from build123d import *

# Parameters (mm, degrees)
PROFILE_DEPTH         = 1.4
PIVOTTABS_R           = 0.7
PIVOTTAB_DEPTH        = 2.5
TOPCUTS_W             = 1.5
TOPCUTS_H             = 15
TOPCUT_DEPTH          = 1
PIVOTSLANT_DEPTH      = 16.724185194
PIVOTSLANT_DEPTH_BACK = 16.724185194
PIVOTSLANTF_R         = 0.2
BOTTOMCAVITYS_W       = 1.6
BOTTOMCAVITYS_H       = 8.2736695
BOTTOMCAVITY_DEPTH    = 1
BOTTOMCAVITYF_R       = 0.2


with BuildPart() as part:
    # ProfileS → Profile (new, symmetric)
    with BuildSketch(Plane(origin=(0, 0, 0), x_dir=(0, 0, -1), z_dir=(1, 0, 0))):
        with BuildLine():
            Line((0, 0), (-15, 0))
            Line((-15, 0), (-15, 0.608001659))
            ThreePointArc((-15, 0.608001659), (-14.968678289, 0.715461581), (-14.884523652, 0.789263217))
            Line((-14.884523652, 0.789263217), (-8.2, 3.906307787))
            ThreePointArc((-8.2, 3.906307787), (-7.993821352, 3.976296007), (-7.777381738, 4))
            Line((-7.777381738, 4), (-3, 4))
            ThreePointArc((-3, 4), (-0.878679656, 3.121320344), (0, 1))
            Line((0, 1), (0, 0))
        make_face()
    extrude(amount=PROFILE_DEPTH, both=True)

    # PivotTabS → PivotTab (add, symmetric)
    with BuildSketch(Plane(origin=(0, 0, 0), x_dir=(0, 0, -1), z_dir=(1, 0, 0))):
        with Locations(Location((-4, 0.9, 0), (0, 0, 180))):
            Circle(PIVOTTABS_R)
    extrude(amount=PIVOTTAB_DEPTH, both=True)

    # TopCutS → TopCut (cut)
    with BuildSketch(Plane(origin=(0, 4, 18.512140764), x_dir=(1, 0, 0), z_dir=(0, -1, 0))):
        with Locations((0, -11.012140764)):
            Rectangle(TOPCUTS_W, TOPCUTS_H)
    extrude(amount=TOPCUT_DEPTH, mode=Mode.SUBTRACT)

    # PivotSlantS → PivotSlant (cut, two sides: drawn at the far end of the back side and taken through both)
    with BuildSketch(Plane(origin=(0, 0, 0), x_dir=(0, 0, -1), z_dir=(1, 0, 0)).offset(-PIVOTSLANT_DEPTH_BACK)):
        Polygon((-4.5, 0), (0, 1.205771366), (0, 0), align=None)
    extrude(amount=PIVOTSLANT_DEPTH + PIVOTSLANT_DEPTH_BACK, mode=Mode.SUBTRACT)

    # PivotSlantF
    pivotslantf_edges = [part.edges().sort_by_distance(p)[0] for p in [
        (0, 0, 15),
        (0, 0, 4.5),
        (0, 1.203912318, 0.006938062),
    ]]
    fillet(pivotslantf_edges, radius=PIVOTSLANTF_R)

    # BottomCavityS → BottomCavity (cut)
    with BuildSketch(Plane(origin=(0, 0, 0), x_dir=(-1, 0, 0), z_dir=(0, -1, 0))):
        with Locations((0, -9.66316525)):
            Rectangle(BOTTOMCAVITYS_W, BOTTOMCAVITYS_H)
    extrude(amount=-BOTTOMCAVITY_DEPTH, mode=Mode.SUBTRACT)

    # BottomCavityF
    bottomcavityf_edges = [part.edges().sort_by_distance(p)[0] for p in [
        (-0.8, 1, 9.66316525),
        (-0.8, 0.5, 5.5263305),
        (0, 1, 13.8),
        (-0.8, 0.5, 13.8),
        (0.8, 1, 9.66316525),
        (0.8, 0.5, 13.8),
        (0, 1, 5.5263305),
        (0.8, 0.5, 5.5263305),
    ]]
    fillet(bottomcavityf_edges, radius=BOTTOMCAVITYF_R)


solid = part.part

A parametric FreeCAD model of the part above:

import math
import FreeCAD as App
import Part
import Sketcher
Q = App.Units.Quantity


def edges_at(feature, points):
    """Names of the edges that pass closest to the given points."""
    edges = feature.Shape.Edges
    near = lambda p: min(range(len(edges)), key=lambda i: edges[i].distToShape(Part.Vertex(*p))[0])
    return sorted({f"Edge{near(p) + 1}" for p in points})


def add_polygon(sketch, points):
    """Adds a closed chain of lines whose ends are joined by coincident constraints."""
    first, n = sketch.GeometryCount, len(points)
    for a, b in zip(points, points[1:] + points[:1]):
        sketch.addGeometry(Part.LineSegment(App.Vector(*a, 0), App.Vector(*b, 0)), False)
    for i in range(n):
        sketch.addConstraint(Sketcher.Constraint("Coincident", first + i, 2, first + (i + 1) % n, 1))

doc = App.newDocument("Part")
body = doc.addObject("PartDesign::Body", "Body")

sketch1 = doc.addObject("Sketcher::SketchObject", "Sketch")
body.addObject(sketch1)
sketch1.AttachmentSupport = (doc.YZ_Plane, [""])
sketch1.MapMode = "FlatFace"
sketch1.addGeometry([
    Part.LineSegment(App.Vector(0, 15, 0), App.Vector(0, 0, 0)),
    Part.LineSegment(App.Vector(0, 0, 0), App.Vector(1, 0, 0)),
    Part.ArcOfCircle(Part.Circle(App.Vector(1, 3, 0), App.Vector(0, 0, 1), 3), math.radians(-90), math.radians(0)),
    Part.LineSegment(App.Vector(4, 3, 0), App.Vector(4, 7.78, 0)),
    Part.ArcOfCircle(Part.Circle(App.Vector(3, 7.78, 0), App.Vector(0, 0, 1), 1), math.radians(0), math.radians(25)),
    Part.LineSegment(App.Vector(3.91, 8.2, 0), App.Vector(0.79, 14.88, 0)),
    Part.ArcOfCircle(Part.Circle(App.Vector(0.61, 14.8, 0), App.Vector(0, 0, 1), 0.2), math.radians(25), math.radians(90)),
    Part.LineSegment(App.Vector(0.61, 15, 0), App.Vector(0, 15, 0)),
], False)
sketch1.addConstraint([
    Sketcher.Constraint("Coincident", 0, 2, 1, 1),
    Sketcher.Constraint("Tangent", 1, 2, 2, 1),
    Sketcher.Constraint("Tangent", 2, 2, 3, 1),
    Sketcher.Constraint("Tangent", 3, 2, 4, 1),
    Sketcher.Constraint("Tangent", 4, 2, 5, 1),
    Sketcher.Constraint("Tangent", 5, 2, 6, 1),
    Sketcher.Constraint("Tangent", 6, 2, 7, 1),
    Sketcher.Constraint("Coincident", 7, 2, 0, 1),
    Sketcher.Constraint("Vertical", 0),
    Sketcher.Constraint("Horizontal", 1),
    Sketcher.Constraint("Vertical", 3),
    Sketcher.Constraint("Horizontal", 7),
    Sketcher.Constraint("Coincident", 0, 2, -1, 1),
    Sketcher.Constraint("Radius", 2, 3.0),
    Sketcher.Constraint("Radius", 4, 1.0),
    Sketcher.Constraint("Radius", 6, 0.2),
    Sketcher.Constraint("DistanceX", 1, 1, 1, 2, 1.0),
    Sketcher.Constraint("DistanceY", 0, 2, 0, 1, 15.0),
    Sketcher.Constraint("Angle", 5, Q("115 deg")),
    Sketcher.Constraint("DistanceY", -1, 1, 4, 2, 8.2),
])
pad1 = doc.addObject("PartDesign::Pad", "Pad")
body.addObject(pad1)
pad1.Profile = sketch1
pad1.Length = 2.8
pad1.Midplane = True

sketch2 = doc.addObject("Sketcher::SketchObject", "Sketch001")
body.addObject(sketch2)
sketch2.AttachmentSupport = (doc.YZ_Plane, [""])
sketch2.MapMode = "FlatFace"
sketch2.addGeometry(Part.Circle(App.Vector(0.9, 4, 0), App.Vector(0, 0, 1), 0.7), False)
sketch2.addConstraint([
    Sketcher.Constraint("Diameter", 0, 1.4),
    Sketcher.Constraint("DistanceY", -1, 1, 0, 3, 4.0),
    Sketcher.Constraint("DistanceX", -1, 1, 0, 3, 0.9),
])
pad2 = doc.addObject("PartDesign::Pad", "Pad001")
body.addObject(pad2)
pad2.Profile = sketch2
pad2.Length = 5
pad2.Midplane = True

sketch3 = doc.addObject("Sketcher::SketchObject", "Sketch002")
body.addObject(sketch3)
sketch3.AttachmentSupport = (doc.XZ_Plane, [""])
sketch3.MapMode = "FlatFace"
sketch3.AttachmentOffset = App.Placement(App.Vector(0, 0, -4), App.Rotation())
add_polygon(sketch3, [(-0.8, 15), (-0.8, 0), (0.8, 0), (0.8, 15)])
sketch3.addConstraint([
    Sketcher.Constraint("Vertical", 0),
    Sketcher.Constraint("Horizontal", 1),
    Sketcher.Constraint("Vertical", 2),
    Sketcher.Constraint("Horizontal", 3),
    Sketcher.Constraint("Symmetric", 0, 2, 1, 2, -1, 1),
    Sketcher.Constraint("DistanceY", 0, 2, 0, 1, 15.0),
    Sketcher.Constraint("DistanceX", 1, 1, 1, 2, 1.5),
])
pocket1 = doc.addObject("PartDesign::Pocket", "Pocket")
body.addObject(pocket1)
pocket1.Profile = sketch3
pocket1.Length = 1
pocket1.Reversed = True

sketch4 = doc.addObject("Sketcher::SketchObject", "Sketch003")
body.addObject(sketch4)
sketch4.AttachmentSupport = (doc.YZ_Plane, [""])
sketch4.MapMode = "FlatFace"
add_polygon(sketch4, [(1.2, 0), (0, 4.5), (0, 0)])
sketch4.addConstraint([
    Sketcher.Constraint("Vertical", 1),
    Sketcher.Constraint("Horizontal", 2),
    Sketcher.Constraint("Coincident", 1, 2, -1, 1),
    Sketcher.Constraint("Angle", 0, Q("105 deg")),
    Sketcher.Constraint("DistanceY", 1, 2, 1, 1, 4.5),
])
pocket2 = doc.addObject("PartDesign::Pocket", "Pocket001")
body.addObject(pocket2)
pocket2.Profile = sketch4
pocket2.Type = "ThroughAll"
pocket2.Midplane = True
doc.recompute()

fillet = doc.addObject("PartDesign::Fillet", "Fillet")
body.addObject(fillet)
fillet.Base = (pocket2, edges_at(pocket2, [(0, 0, 15), (0, 0, 4.5), (0, 1.204, 0.007)]))
fillet.Radius = 0.2

sketch5 = doc.addObject("Sketcher::SketchObject", "Sketch004")
body.addObject(sketch5)
sketch5.AttachmentSupport = (doc.XZ_Plane, [""])
sketch5.MapMode = "FlatFace"
add_polygon(sketch5, [(0.8, 5.5), (0.8, 13.8), (-0.8, 13.8), (-0.8, 5.5)])
sketch5.addConstraint([
    Sketcher.Constraint("Vertical", 0),
    Sketcher.Constraint("Horizontal", 1),
    Sketcher.Constraint("Vertical", 2),
    Sketcher.Constraint("Horizontal", 3),
    Sketcher.Constraint("DistanceX", 1, 2, 1, 1, 1.6),
    Sketcher.Constraint("DistanceX", -1, 1, 0, 2, 0.8),
    Sketcher.Constraint("DistanceY", -1, 1, 0, 2, 13.8),
    Sketcher.Constraint("DistanceY", 0, 1, 0, 2, 8.27367),
])
pocket3 = doc.addObject("PartDesign::Pocket", "Pocket002")
body.addObject(pocket3)
pocket3.Profile = sketch5
pocket3.Length = 1
doc.recompute()

fillet2 = doc.addObject("PartDesign::Fillet", "Fillet001")
body.addObject(fillet2)
fillet2.Base = (pocket3, edges_at(pocket3, [
    (-0.8, 1, 9.663),
    (-0.8, 0.5, 5.526),
    (0, 1, 13.8),
    (-0.8, 0.5, 13.8),
    (0.8, 1, 9.663),
    (0.8, 0.5, 13.8),
    (0, 1, 5.526),
    (0.8, 0.5, 5.526),
]))
fillet2.Radius = 0.2

doc.recompute()
